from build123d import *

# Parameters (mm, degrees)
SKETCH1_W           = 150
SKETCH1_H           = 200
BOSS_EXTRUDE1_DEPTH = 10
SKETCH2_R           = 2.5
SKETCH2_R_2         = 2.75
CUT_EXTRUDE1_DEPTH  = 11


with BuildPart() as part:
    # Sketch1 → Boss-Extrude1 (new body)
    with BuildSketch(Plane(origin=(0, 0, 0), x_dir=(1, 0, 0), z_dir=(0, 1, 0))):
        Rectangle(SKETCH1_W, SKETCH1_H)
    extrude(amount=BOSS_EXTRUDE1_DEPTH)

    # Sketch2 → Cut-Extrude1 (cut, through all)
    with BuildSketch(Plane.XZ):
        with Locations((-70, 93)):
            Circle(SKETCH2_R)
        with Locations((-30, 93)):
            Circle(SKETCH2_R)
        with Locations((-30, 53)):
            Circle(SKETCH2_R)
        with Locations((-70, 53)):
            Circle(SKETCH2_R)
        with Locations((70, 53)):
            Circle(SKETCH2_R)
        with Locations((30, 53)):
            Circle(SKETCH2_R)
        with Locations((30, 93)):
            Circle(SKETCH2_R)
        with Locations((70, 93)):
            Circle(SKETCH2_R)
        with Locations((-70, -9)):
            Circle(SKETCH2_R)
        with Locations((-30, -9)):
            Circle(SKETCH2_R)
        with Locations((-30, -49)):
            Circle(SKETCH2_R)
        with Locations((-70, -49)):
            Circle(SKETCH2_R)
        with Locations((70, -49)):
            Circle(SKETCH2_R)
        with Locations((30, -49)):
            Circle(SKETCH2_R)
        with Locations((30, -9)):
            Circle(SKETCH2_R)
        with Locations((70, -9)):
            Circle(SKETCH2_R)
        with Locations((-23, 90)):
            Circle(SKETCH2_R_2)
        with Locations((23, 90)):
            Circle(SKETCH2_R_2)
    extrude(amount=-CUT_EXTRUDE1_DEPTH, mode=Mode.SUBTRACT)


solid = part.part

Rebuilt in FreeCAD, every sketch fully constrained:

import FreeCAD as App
import Part
import Sketcher

V = App.Vector
Q = App.Units.Quantity


def add_polygon(sketch, points):
    """Adds a closed chain of lines whose ends are joined by coincident constraints."""
    first, n = sketch.GeometryCount, len(points)
    for a, b in zip(points, points[1:] + points[:1]):
        sketch.addGeometry(Part.LineSegment(App.Vector(*a, 0), App.Vector(*b, 0)), False)
    for i in range(n):
        sketch.addConstraint(Sketcher.Constraint("Coincident", first + i, 2, first + (i + 1) % n, 1))

doc = App.newDocument("Part")
body = doc.addObject("PartDesign::Body", "Body")

# Sketch on XZ plane
sketch1 = doc.addObject("Sketcher::SketchObject", "Sketch")
body.addObject(sketch1)
sketch1.AttachmentSupport = (doc.XZ_Plane, [""])
sketch1.MapMode = "FlatFace"
add_polygon(sketch1, [(-75, -100), (-75, 100), (75, 100), (75, -100)])  # lines 0-3
sketch1.addConstraint(Sketcher.Constraint("Vertical", 0))
sketch1.addConstraint(Sketcher.Constraint("Horizontal", 1))
sketch1.addConstraint(Sketcher.Constraint("Vertical", 2))
sketch1.addConstraint(Sketcher.Constraint("Horizontal", 3))
sketch1.addConstraint(Sketcher.Constraint("Symmetric", 0, 2, 2, 2, -1, 1))
sketch1.addConstraint(Sketcher.Constraint("DistanceX", 1, 1, 1, 2, Q("150 mm")))
sketch1.addConstraint(Sketcher.Constraint("DistanceY", 0, 1, 0, 2, Q("200 mm")))
pad1 = doc.addObject("PartDesign::Pad", "Pad")
body.addObject(pad1)
pad1.Profile = sketch1
pad1.Length = 10
pad1.Reversed = True

# Sketch on XZ plane
sketch2 = doc.addObject("Sketcher::SketchObject", "Sketch001")
body.addObject(sketch2)
sketch2.AttachmentSupport = (doc.XZ_Plane, [""])
sketch2.MapMode = "FlatFace"
sketch2.addGeometry(Part.Circle(V(-70, 93, 0), V(0, 0, 1), 2.5), False)
sketch2.addGeometry(Part.Circle(V(-30, 93, 0), V(0, 0, 1), 2.5), False)
sketch2.addGeometry(Part.Circle(V(-30, 53, 0), V(0, 0, 1), 2.5), False)
sketch2.addGeometry(Part.Circle(V(-70, 53, 0), V(0, 0, 1), 2.5), False)
sketch2.addGeometry(Part.Circle(V(70, 53, 0), V(0, 0, 1), 2.5), False)
sketch2.addGeometry(Part.Circle(V(30, 53, 0), V(0, 0, 1), 2.5), False)
sketch2.addGeometry(Part.Circle(V(30, 93, 0), V(0, 0, 1), 2.5), False)
sketch2.addGeometry(Part.Circle(V(70, 93, 0), V(0, 0, 1), 2.5), False)
sketch2.addGeometry(Part.Circle(V(-70, -9, 0), V(0, 0, 1), 2.5), False)
sketch2.addGeometry(Part.Circle(V(-30, -9, 0), V(0, 0, 1), 2.5), False)
sketch2.addGeometry(Part.Circle(V(-30, -49, 0), V(0, 0, 1), 2.5), False)
sketch2.addGeometry(Part.Circle(V(-70, -49, 0), V(0, 0, 1), 2.5), False)
sketch2.addGeometry(Part.Circle(V(70, -49, 0), V(0, 0, 1), 2.5), False)
sketch2.addGeometry(Part.Circle(V(30, -49, 0), V(0, 0, 1), 2.5), False)
sketch2.addGeometry(Part.Circle(V(30, -9, 0), V(0, 0, 1), 2.5), False)
sketch2.addGeometry(Part.Circle(V(70, -9, 0), V(0, 0, 1), 2.5), False)
sketch2.addGeometry(Part.Circle(V(-23, 90, 0), V(0, 0, 1), 2.75), False)
sketch2.addGeometry(Part.Circle(V(23, 90, 0), V(0, 0, 1), 2.75), False)
sketch2.addConstraint(Sketcher.Constraint("Equal", 0, 1))
sketch2.addConstraint(Sketcher.Constraint("Equal", 1, 2))
sketch2.addConstraint(Sketcher.Constraint("Equal", 2, 3))
sketch2.addConstraint(Sketcher.Constraint("Equal", 3, 4))
sketch2.addConstraint(Sketcher.Constraint("Equal", 4, 5))
sketch2.addConstraint(Sketcher.Constraint("Equal", 5, 6))
sketch2.addConstraint(Sketcher.Constraint("Equal", 6, 7))
sketch2.addConstraint(Sketcher.Constraint("Equal", 7, 8))
sketch2.addConstraint(Sketcher.Constraint("Equal", 8, 9))
sketch2.addConstraint(Sketcher.Constraint("Equal", 9, 10))
sketch2.addConstraint(Sketcher.Constraint("Equal", 10, 11))
sketch2.addConstraint(Sketcher.Constraint("Equal", 11, 12))
sketch2.addConstraint(Sketcher.Constraint("Equal", 12, 13))
sketch2.addConstraint(Sketcher.Constraint("Equal", 13, 14))
sketch2.addConstraint(Sketcher.Constraint("Equal", 14, 15))
sketch2.addConstraint(Sketcher.Constraint("Equal", 16, 17))
sketch2.addConstraint(Sketcher.Constraint("Symmetric", 3, 3, 4, 3, -2))
sketch2.addConstraint(Sketcher.Constraint("Symmetric", 2, 3, 5, 3, -2))
sketch2.addConstraint(Sketcher.Constraint("Symmetric", 1, 3, 6, 3, -2))
sketch2.addConstraint(Sketcher.Constraint("Symmetric", 0, 3, 7, 3, -2))
sketch2.addConstraint(Sketcher.Constraint("Symmetric", 11, 3, 12, 3, -2))
sketch2.addConstraint(Sketcher.Constraint("Symmetric", 10, 3, 13, 3, -2))
sketch2.addConstraint(Sketcher.Constraint("Symmetric", 9, 3, 14, 3, -2))
sketch2.addConstraint(Sketcher.Constraint("Symmetric", 8, 3, 15, 3, -2))
sketch2.addConstraint(Sketcher.Constraint("Symmetric", 16, 3, 17, 3, -2))
sketch2.addConstraint(Sketcher.Constraint("Horizontal", 0, 3, 1, 3))
sketch2.addConstraint(Sketcher.Constraint("Horizontal", 2, 3, 3, 3))
sketch2.addConstraint(Sketcher.Constraint("Horizontal", 8, 3, 9, 3))
sketch2.addConstraint(Sketcher.Constraint("Horizontal", 10, 3, 11, 3))
sketch2.addConstraint(Sketcher.Constraint("Vertical", 1, 3, 2, 3))
sketch2.addConstraint(Sketcher.Constraint("Vertical", 0, 3, 3, 3))
sketch2.addConstraint(Sketcher.Constraint("Vertical", 3, 3, 8, 3))
sketch2.addConstraint(Sketcher.Constraint("Vertical", 2, 3, 9, 3))
sketch2.addConstraint(Sketcher.Constraint("Vertical", 9, 3, 10, 3))
sketch2.addConstraint(Sketcher.Constraint("Vertical", 8, 3, 11, 3))
sketch2.addConstraint(Sketcher.Constraint("Diameter", 0, Q("5 mm")))
sketch2.addConstraint(Sketcher.Constraint("Diameter", 16, Q("5.5 mm")))
sketch2.addConstraint(Sketcher.Constraint("DistanceX", 0, 3, -1, 1, Q("70 mm")))
sketch2.addConstraint(Sketcher.Constraint("DistanceY", -1, 1, 0, 3, Q("93 mm")))
sketch2.addConstraint(Sketcher.Constraint("DistanceX", 1, 3, -1, 1, Q("30 mm")))
sketch2.addConstraint(Sketcher.Constraint("DistanceY", -1, 1, 2, 3, Q("53 mm")))
sketch2.addConstraint(Sketcher.Constraint("DistanceY", 8, 3, -1, 1, Q("9 mm")))
sketch2.addConstraint(Sketcher.Constraint("DistanceY", 10, 3, -1, 1, Q("49 mm")))
sketch2.addConstraint(Sketcher.Constraint("DistanceX", 16, 3, -1, 1, Q("23 mm")))
sketch2.addConstraint(Sketcher.Constraint("DistanceY", -1, 1, 16, 3, Q("90 mm")))
pocket1 = doc.addObject("PartDesign::Pocket", "Pocket")
body.addObject(pocket1)
pocket1.Profile = sketch2
pocket1.Type = "ThroughAll"

doc.recompute()
